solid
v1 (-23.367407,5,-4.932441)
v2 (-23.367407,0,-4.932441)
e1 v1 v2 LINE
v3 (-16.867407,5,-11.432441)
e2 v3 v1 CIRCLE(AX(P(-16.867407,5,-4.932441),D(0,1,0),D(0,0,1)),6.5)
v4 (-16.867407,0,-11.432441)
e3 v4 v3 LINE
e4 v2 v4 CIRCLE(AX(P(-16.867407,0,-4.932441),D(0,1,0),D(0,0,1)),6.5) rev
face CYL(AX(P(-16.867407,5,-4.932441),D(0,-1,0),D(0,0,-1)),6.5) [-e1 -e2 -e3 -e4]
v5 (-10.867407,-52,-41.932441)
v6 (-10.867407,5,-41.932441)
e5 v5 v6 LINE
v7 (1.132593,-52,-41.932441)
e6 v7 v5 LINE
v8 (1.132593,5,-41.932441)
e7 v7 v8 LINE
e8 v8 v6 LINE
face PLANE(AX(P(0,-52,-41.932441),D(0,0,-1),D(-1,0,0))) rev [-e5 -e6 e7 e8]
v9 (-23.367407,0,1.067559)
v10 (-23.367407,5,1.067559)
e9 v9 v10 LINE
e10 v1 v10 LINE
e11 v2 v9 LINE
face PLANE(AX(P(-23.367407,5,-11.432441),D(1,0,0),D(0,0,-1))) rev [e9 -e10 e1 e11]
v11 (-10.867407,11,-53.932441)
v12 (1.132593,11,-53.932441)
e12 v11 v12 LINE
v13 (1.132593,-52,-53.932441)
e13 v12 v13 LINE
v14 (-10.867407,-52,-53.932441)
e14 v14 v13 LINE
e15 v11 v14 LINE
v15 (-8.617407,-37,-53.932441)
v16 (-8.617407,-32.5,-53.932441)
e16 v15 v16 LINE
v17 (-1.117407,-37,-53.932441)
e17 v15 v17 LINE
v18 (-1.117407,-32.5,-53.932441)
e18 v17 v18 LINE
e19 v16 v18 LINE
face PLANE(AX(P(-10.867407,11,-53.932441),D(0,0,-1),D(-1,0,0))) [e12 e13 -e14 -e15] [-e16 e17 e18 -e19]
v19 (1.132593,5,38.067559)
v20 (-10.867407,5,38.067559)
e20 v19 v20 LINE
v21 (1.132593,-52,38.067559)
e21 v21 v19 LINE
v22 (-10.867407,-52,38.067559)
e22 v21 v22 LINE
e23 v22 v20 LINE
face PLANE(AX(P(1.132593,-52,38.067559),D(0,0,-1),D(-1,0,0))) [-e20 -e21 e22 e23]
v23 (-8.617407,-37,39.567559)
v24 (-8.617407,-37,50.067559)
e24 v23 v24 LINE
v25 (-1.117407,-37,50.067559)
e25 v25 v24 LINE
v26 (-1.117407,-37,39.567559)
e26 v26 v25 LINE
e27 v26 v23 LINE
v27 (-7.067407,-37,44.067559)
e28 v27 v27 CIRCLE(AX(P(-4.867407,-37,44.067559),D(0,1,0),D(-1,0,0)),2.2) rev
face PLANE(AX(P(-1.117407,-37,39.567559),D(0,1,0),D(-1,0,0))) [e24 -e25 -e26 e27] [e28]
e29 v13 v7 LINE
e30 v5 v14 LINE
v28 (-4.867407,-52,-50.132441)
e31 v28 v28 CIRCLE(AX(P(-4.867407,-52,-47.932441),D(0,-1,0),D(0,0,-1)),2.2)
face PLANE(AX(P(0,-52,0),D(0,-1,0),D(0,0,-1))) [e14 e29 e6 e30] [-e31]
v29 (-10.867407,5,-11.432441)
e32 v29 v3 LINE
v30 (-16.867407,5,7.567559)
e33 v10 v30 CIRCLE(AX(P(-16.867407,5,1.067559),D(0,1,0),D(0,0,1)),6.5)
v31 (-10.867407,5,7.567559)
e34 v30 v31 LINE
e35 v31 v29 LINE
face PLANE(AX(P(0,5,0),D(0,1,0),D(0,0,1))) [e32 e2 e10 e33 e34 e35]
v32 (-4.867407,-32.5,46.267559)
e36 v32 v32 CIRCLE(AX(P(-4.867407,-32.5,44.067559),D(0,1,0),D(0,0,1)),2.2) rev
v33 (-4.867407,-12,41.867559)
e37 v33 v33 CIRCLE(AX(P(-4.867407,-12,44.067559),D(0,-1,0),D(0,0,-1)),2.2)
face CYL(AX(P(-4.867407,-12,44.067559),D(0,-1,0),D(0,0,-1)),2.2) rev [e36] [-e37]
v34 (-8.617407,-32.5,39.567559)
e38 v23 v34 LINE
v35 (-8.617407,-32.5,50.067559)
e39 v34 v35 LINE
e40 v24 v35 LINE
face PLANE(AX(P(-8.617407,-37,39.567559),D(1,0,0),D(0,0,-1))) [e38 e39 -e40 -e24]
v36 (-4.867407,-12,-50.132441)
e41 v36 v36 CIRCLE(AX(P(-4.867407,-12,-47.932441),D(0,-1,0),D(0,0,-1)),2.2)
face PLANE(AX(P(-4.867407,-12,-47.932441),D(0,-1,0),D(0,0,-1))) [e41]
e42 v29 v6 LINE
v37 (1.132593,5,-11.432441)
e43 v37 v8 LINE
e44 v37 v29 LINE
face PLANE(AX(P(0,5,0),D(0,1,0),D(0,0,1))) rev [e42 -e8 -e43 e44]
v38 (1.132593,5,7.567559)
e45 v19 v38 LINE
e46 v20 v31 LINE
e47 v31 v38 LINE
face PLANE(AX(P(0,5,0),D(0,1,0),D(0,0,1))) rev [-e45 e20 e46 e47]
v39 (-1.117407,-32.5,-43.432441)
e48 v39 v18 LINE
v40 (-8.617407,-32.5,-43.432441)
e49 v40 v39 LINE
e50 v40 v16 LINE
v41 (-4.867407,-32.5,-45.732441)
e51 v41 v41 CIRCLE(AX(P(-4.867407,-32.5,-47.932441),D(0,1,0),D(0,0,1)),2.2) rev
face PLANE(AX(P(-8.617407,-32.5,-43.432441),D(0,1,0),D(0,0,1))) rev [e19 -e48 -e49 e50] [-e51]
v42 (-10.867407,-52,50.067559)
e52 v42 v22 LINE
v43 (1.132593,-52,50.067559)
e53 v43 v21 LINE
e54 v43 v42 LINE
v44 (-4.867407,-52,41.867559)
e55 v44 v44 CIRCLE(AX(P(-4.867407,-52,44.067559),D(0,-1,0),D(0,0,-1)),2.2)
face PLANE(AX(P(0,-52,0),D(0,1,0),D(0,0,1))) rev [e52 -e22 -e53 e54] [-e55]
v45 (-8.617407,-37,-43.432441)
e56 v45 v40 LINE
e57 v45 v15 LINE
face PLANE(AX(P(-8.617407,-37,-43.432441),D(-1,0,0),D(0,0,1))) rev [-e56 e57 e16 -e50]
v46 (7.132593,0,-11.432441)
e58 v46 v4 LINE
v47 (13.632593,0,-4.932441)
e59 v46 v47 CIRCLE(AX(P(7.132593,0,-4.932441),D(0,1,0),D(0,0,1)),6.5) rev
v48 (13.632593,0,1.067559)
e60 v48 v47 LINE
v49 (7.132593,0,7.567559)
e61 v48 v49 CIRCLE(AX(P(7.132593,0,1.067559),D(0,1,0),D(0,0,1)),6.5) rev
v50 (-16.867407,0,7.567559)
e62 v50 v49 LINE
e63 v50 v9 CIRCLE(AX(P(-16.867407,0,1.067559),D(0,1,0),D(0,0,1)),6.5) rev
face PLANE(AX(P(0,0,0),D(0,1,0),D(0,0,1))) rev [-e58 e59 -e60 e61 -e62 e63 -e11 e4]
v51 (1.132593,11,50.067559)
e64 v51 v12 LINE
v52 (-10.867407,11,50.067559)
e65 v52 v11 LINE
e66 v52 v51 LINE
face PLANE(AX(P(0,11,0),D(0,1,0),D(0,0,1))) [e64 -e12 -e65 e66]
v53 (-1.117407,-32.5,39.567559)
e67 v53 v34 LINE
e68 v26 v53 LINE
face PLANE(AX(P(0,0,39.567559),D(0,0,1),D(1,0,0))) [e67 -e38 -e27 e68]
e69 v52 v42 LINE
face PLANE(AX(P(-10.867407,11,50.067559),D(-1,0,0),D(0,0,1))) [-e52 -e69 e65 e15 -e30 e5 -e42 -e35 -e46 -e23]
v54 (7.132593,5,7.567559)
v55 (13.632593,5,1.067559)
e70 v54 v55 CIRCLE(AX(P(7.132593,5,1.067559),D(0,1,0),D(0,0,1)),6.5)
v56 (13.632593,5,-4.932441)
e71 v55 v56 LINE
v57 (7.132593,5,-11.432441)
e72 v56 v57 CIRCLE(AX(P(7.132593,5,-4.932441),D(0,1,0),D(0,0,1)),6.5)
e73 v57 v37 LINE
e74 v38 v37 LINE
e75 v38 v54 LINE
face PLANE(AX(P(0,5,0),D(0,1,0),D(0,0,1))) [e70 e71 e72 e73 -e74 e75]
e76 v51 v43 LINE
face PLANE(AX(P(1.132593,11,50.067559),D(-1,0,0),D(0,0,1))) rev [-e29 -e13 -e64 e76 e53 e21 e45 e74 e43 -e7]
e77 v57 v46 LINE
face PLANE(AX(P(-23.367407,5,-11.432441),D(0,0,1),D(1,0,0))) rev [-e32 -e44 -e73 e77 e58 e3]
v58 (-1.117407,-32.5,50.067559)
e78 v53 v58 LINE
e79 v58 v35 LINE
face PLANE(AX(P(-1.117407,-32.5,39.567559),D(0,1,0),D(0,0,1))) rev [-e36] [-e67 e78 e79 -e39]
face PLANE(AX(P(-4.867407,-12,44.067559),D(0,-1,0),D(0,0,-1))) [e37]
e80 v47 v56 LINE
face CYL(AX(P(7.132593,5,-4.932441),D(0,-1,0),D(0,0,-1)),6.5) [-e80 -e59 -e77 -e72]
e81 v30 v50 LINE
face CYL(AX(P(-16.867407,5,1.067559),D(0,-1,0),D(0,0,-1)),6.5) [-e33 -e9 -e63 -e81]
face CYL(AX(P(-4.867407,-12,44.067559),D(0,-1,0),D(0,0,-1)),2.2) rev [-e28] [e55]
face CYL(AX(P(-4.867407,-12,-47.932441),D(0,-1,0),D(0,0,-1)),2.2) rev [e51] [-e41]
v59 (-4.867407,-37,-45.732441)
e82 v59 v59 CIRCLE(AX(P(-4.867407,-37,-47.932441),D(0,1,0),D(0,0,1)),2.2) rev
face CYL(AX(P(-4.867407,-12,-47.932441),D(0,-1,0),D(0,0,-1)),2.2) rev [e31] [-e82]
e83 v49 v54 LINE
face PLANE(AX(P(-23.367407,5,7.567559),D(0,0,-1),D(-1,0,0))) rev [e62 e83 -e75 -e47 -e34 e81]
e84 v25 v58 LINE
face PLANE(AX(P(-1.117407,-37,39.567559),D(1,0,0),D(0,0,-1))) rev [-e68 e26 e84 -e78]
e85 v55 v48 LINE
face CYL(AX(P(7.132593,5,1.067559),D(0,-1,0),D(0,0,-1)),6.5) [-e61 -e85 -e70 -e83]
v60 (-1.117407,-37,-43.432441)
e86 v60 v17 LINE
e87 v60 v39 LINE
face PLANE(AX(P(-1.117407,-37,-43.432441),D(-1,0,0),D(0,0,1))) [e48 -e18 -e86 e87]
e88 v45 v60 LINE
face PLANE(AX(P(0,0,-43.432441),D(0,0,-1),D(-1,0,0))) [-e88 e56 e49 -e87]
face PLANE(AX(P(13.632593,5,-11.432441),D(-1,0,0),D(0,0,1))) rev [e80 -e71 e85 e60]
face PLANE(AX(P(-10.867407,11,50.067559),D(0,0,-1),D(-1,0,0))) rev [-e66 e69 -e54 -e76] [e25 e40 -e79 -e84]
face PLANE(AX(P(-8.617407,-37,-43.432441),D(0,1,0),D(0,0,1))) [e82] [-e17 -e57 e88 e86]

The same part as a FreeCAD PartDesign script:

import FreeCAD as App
import Part
import Sketcher
Q = App.Units.Quantity


def edges_at(feature, points):
    """Names of the edges that pass closest to the given points."""
    edges = feature.Shape.Edges
    near = lambda p: min(range(len(edges)), key=lambda i: edges[i].distToShape(Part.Vertex(*p))[0])
    return sorted({f"Edge{near(p) + 1}" for p in points})

doc = App.newDocument("Part")
body = doc.addObject("PartDesign::Body", "Body")

# Sketch on XZ plane
sketch1 = body.newObject("Sketcher::SketchObject", "Sketch")
sketch1.AttachmentSupport = (doc.getObject("XZ_Plane"), [""])
sketch1.MapMode = "FlatFace"
sketch1.addGeometry([
    Part.LineSegment(App.Vector(-23, -11, 0), App.Vector(-23, 8, 0)),
    Part.LineSegment(App.Vector(-23, 8, 0), App.Vector(14, 8, 0)),
    Part.LineSegment(App.Vector(14, 8, 0), App.Vector(14, -11, 0)),
    Part.LineSegment(App.Vector(14, -11, 0), App.Vector(-23, -11, 0)),
], False)
sketch1.addConstraint([
    Sketcher.Constraint("Coincident", 0, 2, 1, 1),
    Sketcher.Constraint("Coincident", 1, 2, 2, 1),
    Sketcher.Constraint("Coincident", 2, 2, 3, 1),
    Sketcher.Constraint("Coincident", 3, 2, 0, 1),
    Sketcher.Constraint("Vertical", 0),
    Sketcher.Constraint("Horizontal", 1),
    Sketcher.Constraint("Vertical", 2),
    Sketcher.Constraint("Horizontal", 3),
    Sketcher.Constraint("DistanceX", 1, 1, 1, 2, Q("37 mm")),
    Sketcher.Constraint("DistanceY", 0, 1, 0, 2, Q("19 mm")),
    Sketcher.Constraint("DistanceY", -1, 1, 0, 2, Q("7.567559 mm")),
    Sketcher.Constraint("DistanceX", 0, 2, -1, 1, Q("23.367407 mm")),
])
pad1 = body.newObject("PartDesign::Pad", "Pad")
pad1.Profile = sketch1
pad1.Length = 5
pad1.Reversed = True
doc.recompute()

fillet = body.newObject("PartDesign::Fillet", "Fillet")
fillet.Base = (pad1, edges_at(pad1, [
    (-23.367, 2.5, -11.432),
    (13.633, 2.5, -11.432),
    (13.633, 2.5, 7.568),
    (-23.367, 2.5, 7.568),
]))
fillet.Radius = 6.5

# Sketch on XZ plane
sketch2 = body.newObject("Sketcher::SketchObject", "Sketch001")
sketch2.AttachmentSupport = (doc.getObject("XZ_Plane"), [""])
sketch2.MapMode = "FlatFace"
sketch2.AttachmentOffset = App.Placement(App.Vector(0, 0, -5), App.Rotation())
sketch2.addGeometry([
    Part.LineSegment(App.Vector(-11, -54, 0), App.Vector(-11, 50, 0)),
    Part.LineSegment(App.Vector(-11, 50, 0), App.Vector(1, 50, 0)),
    Part.LineSegment(App.Vector(1, 50, 0), App.Vector(1, -54, 0)),
    Part.LineSegment(App.Vector(1, -54, 0), App.Vector(-11, -54, 0)),
], False)
sketch2.addConstraint([
    Sketcher.Constraint("Coincident", 0, 2, 1, 1),
    Sketcher.Constraint("Coincident", 1, 2, 2, 1),
    Sketcher.Constraint("Coincident", 2, 2, 3, 1),
    Sketcher.Constraint("Coincident", 3, 2, 0, 1),
    Sketcher.Constraint("Vertical", 0),
    Sketcher.Constraint("Horizontal", 1),
    Sketcher.Constraint("Vertical", 2),
    Sketcher.Constraint("Horizontal", 3),
    Sketcher.Constraint("DistanceX", 1, 1, 1, 2, Q("12 mm")),
    Sketcher.Constraint("DistanceY", 0, 1, 0, 2, Q("104 mm")),
    Sketcher.Constraint("DistanceY", -1, 1, 0, 2, Q("50.067559 mm")),
    Sketcher.Constraint("DistanceX", 0, 2, -1, 1, Q("10.867407 mm")),
])
pad2 = body.newObject("PartDesign::Pad", "Pad001")
pad2.Profile = sketch2
pad2.Length = 6
pad2.Reversed = True

# Sketch on XZ plane
sketch3 = body.newObject("Sketcher::SketchObject", "Sketch002")
sketch3.AttachmentSupport = (doc.getObject("XZ_Plane"), [""])
sketch3.MapMode = "FlatFace"
sketch3.AttachmentOffset = App.Placement(App.Vector(0, 0, -5), App.Rotation())
sketch3.addGeometry([
    Part.LineSegment(App.Vector(1, -54, 0), App.Vector(1, -42, 0)),  # 0
    Part.LineSegment(App.Vector(1, -42, 0), App.Vector(-11, -42, 0)),  # 1
    Part.LineSegment(App.Vector(-11, -42, 0), App.Vector(-11, -54, 0)),  # 2
    Part.LineSegment(App.Vector(-11, -54, 0), App.Vector(1, -54, 0)),  # 3
    Part.LineSegment(App.Vector(1, 38, 0), App.Vector(1, 50, 0)),  # 4
    Part.LineSegment(App.Vector(1, 50, 0), App.Vector(-11, 50, 0)),  # 5
    Part.LineSegment(App.Vector(-11, 50, 0), App.Vector(-11, 38, 0)),  # 6
    Part.LineSegment(App.Vector(-11, 38, 0), App.Vector(1, 38, 0)),  # 7
], False)
sketch3.addConstraint([
    Sketcher.Constraint("Coincident", 0, 2, 1, 1),
    Sketcher.Constraint("Coincident", 1, 2, 2, 1),
    Sketcher.Constraint("Coincident", 2, 2, 3, 1),
    Sketcher.Constraint("Coincident", 3, 2, 0, 1),
    Sketcher.Constraint("Coincident", 4, 2, 5, 1),
    Sketcher.Constraint("Coincident", 5, 2, 6, 1),
    Sketcher.Constraint("Coincident", 6, 2, 7, 1),
    Sketcher.Constraint("Coincident", 7, 2, 4, 1),
    Sketcher.Constraint("Vertical", 0),
    Sketcher.Constraint("Horizontal", 1),
    Sketcher.Constraint("Vertical", 2),
    Sketcher.Constraint("Horizontal", 3),
    Sketcher.Constraint("Vertical", 4),
    Sketcher.Constraint("Horizontal", 5),
    Sketcher.Constraint("Vertical", 6),
    Sketcher.Constraint("Horizontal", 7),
    Sketcher.Constraint("Vertical", 3, 2, 4, 2),
    Sketcher.Constraint("Vertical", 2, 2, 5, 2),
    Sketcher.Constraint("Equal", 7, 0),
    Sketcher.Constraint("Equal", 2, 4),
    Sketcher.Constraint("DistanceX", 1, 2, 1, 1, Q("12 mm")),
    Sketcher.Constraint("DistanceY", 0, 2, 4, 2, Q("92 mm")),
    Sketcher.Constraint("DistanceY", 0, 2, -1, 1, Q("41.932441 mm")),
    Sketcher.Constraint("DistanceX", -1, 1, 0, 2, Q("1.132593 mm")),
])
pad3 = body.newObject("PartDesign::Pad", "Pad002")
pad3.Profile = sketch3
pad3.Length = 57

# Sketch on XZ plane
sketch4 = body.newObject("Sketcher::SketchObject", "Sketch003")
sketch4.AttachmentSupport = (doc.getObject("XZ_Plane"), [""])
sketch4.MapMode = "FlatFace"
sketch4.AttachmentOffset = App.Placement(App.Vector(0, 0, 52), App.Rotation())
sketch4.addGeometry([
    Part.Circle(App.Vector(-4.9, 44.1, 0), App.Vector(0, 0, 1), 2.2),
    Part.Circle(App.Vector(-4.9, -47.9, 0), App.Vector(0, 0, 1), 2.2),
], False)
sketch4.addConstraint([
    Sketcher.Constraint("Equal", 0, 1),
    Sketcher.Constraint("Vertical", 0, 3, 1, 3),
    Sketcher.Constraint("Diameter", 0, Q("4.4 mm")),
    Sketcher.Constraint("DistanceY", 1, 3, 0, 3, Q("92 mm")),
    Sketcher.Constraint("DistanceY", -1, 1, 0, 3, Q("44.067559 mm")),
    Sketcher.Constraint("DistanceX", 0, 3, -1, 1, Q("4.867407 mm")),
])
pocket1 = body.newObject("PartDesign::Pocket", "Pocket")
pocket1.Profile = sketch4
pocket1.Length = 40

# Sketch on XY plane
sketch5 = body.newObject("Sketcher::SketchObject", "Sketch004")
sketch5.AttachmentSupport = (doc.getObject("XY_Plane"), [""])
sketch5.MapMode = "FlatFace"
sketch5.AttachmentOffset = App.Placement(App.Vector(0, 0, 50.067559), App.Rotation())
sketch5.addGeometry([
    Part.LineSegment(App.Vector(-8.6, -32.5, 0), App.Vector(-8.6, -37, 0)),
    Part.LineSegment(App.Vector(-8.6, -37, 0), App.Vector(-1.1, -37, 0)),
    Part.LineSegment(App.Vector(-1.1, -37, 0), App.Vector(-1.1, -32.5, 0)),
    Part.LineSegment(App.Vector(-1.1, -32.5, 0), App.Vector(-8.6, -32.5, 0)),
], False)
sketch5.addConstraint([
    Sketcher.Constraint("Coincident", 0, 2, 1, 1),
    Sketcher.Constraint("Coincident", 1, 2, 2, 1),
    Sketcher.Constraint("Coincident", 2, 2, 3, 1),
    Sketcher.Constraint("Coincident", 3, 2, 0, 1),
    Sketcher.Constraint("Vertical", 0),
    Sketcher.Constraint("Horizontal", 1),
    Sketcher.Constraint("Vertical", 2),
    Sketcher.Constraint("Horizontal", 3),
    Sketcher.Constraint("DistanceX", 1, 1, 1, 2, Q("7.5 mm")),
    Sketcher.Constraint("DistanceY", 0, 2, 0, 1, Q("4.5 mm")),
    Sketcher.Constraint("DistanceY", 0, 2, -1, 1, Q("37 mm")),
    Sketcher.Constraint("DistanceX", 0, 2, -1, 1, Q("8.617407 mm")),
])
pocket2 = body.newObject("PartDesign::Pocket", "Pocket001")
pocket2.Profile = sketch5
pocket2.Length = 10.5

# Sketch on XY plane
sketch6 = body.newObject("Sketcher::SketchObject", "Sketch005")
sketch6.AttachmentSupport = (doc.getObject("XY_Plane"), [""])
sketch6.MapMode = "FlatFace"
sketch6.AttachmentOffset = App.Placement(App.Vector(0, 0, -53.932441), App.Rotation())
sketch6.addGeometry([
    Part.LineSegment(App.Vector(-1.1, -32.5, 0), App.Vector(-1.1, -37, 0)),
    Part.LineSegment(App.Vector(-1.1, -37, 0), App.Vector(-8.6, -37, 0)),
    Part.LineSegment(App.Vector(-8.6, -37, 0), App.Vector(-8.6, -32.5, 0)),
    Part.LineSegment(App.Vector(-8.6, -32.5, 0), App.Vector(-1.1, -32.5, 0)),
], False)
sketch6.addConstraint([
    Sketcher.Constraint("Coincident", 0, 2, 1, 1),
    Sketcher.Constraint("Coincident", 1, 2, 2, 1),
    Sketcher.Constraint("Coincident", 2, 2, 3, 1),
    Sketcher.Constraint("Coincident", 3, 2, 0, 1),
    Sketcher.Constraint("Vertical", 0),
    Sketcher.Constraint("Horizontal", 1),
    Sketcher.Constraint("Vertical", 2),
    Sketcher.Constraint("Horizontal", 3),
    Sketcher.Constraint("DistanceX", 1, 2, 1, 1, Q("7.5 mm")),
    Sketcher.Constraint("DistanceY", 0, 2, 0, 1, Q("4.5 mm")),
    Sketcher.Constraint("DistanceY", 0, 2, -1, 1, Q("37 mm")),
    Sketcher.Constraint("DistanceX", 0, 2, -1, 1, Q("1.117407 mm")),
])
pocket3 = body.newObject("PartDesign::Pocket", "Pocket002")
pocket3.Profile = sketch6
pocket3.Length = 10.5
pocket3.Reversed = True

doc.recompute()
